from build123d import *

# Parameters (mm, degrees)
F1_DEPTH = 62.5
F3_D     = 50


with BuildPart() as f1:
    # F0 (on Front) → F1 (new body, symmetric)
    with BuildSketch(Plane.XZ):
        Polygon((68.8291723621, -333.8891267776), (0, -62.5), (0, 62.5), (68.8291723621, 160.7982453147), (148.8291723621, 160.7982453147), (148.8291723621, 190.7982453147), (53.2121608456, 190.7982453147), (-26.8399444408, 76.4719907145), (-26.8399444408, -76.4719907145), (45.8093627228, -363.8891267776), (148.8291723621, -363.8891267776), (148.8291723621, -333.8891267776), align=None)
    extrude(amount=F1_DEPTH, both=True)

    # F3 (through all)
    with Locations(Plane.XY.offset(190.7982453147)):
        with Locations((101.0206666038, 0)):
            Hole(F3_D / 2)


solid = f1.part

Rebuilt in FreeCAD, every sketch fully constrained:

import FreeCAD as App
import Part
import Sketcher

V = App.Vector
Q = App.Units.Quantity


def add_polygon(sketch, points):
    """Adds a closed chain of lines whose ends are joined by coincident constraints."""
    first, n = sketch.GeometryCount, len(points)
    for a, b in zip(points, points[1:] + points[:1]):
        sketch.addGeometry(Part.LineSegment(App.Vector(*a, 0), App.Vector(*b, 0)), False)
    for i in range(n):
        sketch.addConstraint(Sketcher.Constraint("Coincident", first + i, 2, first + (i + 1) % n, 1))

doc = App.newDocument("Part")
body = doc.addObject("PartDesign::Body", "Body")

# Sketch on XZ plane
sketch1 = doc.addObject("Sketcher::SketchObject", "Sketch")
body.addObject(sketch1)
sketch1.AttachmentSupport = (doc.XZ_Plane, [""])
sketch1.MapMode = "FlatFace"
add_polygon(sketch1, [(68.829172, -333.889127), (0, -62.5), (0, 62.5), (68.829172, 160.798245), (148.829172, 160.798245), (148.829172, 190.798245), (53.212161, 190.798245), (-26.839944, 76.471991), (-26.839944, -76.471991), (45.809363, -363.889127), (148.829172, -363.889127), (148.829172, -333.889127)])  # lines 0-11
sketch1.addConstraint([
    Sketcher.Constraint("Vertical", 1),
    Sketcher.Constraint("Horizontal", 3),
    Sketcher.Constraint("Vertical", 4),
    Sketcher.Constraint("Horizontal", 5),
    Sketcher.Constraint("Vertical", 7),
    Sketcher.Constraint("Horizontal", 9),
    Sketcher.Constraint("Vertical", 10),
    Sketcher.Constraint("Horizontal", 11),
    Sketcher.Constraint("Symmetric", 0, 2, 1, 2, -1, 1),
    Sketcher.Constraint("Parallel", 2, 6),
    Sketcher.Constraint("Vertical", 4, 2, 9, 2),
    Sketcher.Constraint("Vertical", 2, 2, 11, 2),
    Sketcher.Constraint("Equal", 4, 10),
    Sketcher.Constraint("DistanceX", 3, 1, 3, 2, 80.0),
    Sketcher.Constraint("DistanceY", 1, 1, 1, 2, 125.0),
    Sketcher.Constraint("DistanceY", 4, 1, 4, 2, 30.0),
    Sketcher.Constraint("Angle", 2, Q("55 deg")),
    Sketcher.Constraint("Distance", 2, 120.0),
    Sketcher.Constraint("DistanceX", 5, 2, 5, 1, 95.617012),
    Sketcher.Constraint("DistanceX", 9, 1, 9, 2, 103.01981),
    Sketcher.Constraint("DistanceY", 7, 2, 7, 1, 152.943981),
    Sketcher.Constraint("DistanceY", -1, 1, 6, 2, 76.471991),
    Sketcher.Constraint("Distance", 0, 279.981273),
])
pad1 = doc.addObject("PartDesign::Pad", "Pad")
body.addObject(pad1)
pad1.Profile = sketch1
pad1.Length = 125
pad1.Midplane = True

# Sketch on XY plane
sketch2 = doc.addObject("Sketcher::SketchObject", "Sketch001")
body.addObject(sketch2)
sketch2.AttachmentSupport = (doc.XY_Plane, [""])
sketch2.MapMode = "FlatFace"
sketch2.AttachmentOffset = App.Placement(V(0, 0, 190.798245), App.Rotation())
sketch2.addGeometry(Part.Circle(V(101.020667, 0, 0), V(0, 0, 1), 25), False)
sketch2.addConstraint([
    Sketcher.Constraint("PointOnObject", 0, 3, -1),
    Sketcher.Constraint("Diameter", 0, 50.0),
    Sketcher.Constraint("DistanceX", -1, 1, 0, 3, 101.020667),
])
doc.recompute()
hole = doc.addObject("PartDesign::Hole", "Hole")
body.addObject(hole)
hole.Profile = sketch2
hole.ThreadType = "None"
hole.Diameter = 50
hole.DepthType = "ThroughAll"

doc.recompute()
